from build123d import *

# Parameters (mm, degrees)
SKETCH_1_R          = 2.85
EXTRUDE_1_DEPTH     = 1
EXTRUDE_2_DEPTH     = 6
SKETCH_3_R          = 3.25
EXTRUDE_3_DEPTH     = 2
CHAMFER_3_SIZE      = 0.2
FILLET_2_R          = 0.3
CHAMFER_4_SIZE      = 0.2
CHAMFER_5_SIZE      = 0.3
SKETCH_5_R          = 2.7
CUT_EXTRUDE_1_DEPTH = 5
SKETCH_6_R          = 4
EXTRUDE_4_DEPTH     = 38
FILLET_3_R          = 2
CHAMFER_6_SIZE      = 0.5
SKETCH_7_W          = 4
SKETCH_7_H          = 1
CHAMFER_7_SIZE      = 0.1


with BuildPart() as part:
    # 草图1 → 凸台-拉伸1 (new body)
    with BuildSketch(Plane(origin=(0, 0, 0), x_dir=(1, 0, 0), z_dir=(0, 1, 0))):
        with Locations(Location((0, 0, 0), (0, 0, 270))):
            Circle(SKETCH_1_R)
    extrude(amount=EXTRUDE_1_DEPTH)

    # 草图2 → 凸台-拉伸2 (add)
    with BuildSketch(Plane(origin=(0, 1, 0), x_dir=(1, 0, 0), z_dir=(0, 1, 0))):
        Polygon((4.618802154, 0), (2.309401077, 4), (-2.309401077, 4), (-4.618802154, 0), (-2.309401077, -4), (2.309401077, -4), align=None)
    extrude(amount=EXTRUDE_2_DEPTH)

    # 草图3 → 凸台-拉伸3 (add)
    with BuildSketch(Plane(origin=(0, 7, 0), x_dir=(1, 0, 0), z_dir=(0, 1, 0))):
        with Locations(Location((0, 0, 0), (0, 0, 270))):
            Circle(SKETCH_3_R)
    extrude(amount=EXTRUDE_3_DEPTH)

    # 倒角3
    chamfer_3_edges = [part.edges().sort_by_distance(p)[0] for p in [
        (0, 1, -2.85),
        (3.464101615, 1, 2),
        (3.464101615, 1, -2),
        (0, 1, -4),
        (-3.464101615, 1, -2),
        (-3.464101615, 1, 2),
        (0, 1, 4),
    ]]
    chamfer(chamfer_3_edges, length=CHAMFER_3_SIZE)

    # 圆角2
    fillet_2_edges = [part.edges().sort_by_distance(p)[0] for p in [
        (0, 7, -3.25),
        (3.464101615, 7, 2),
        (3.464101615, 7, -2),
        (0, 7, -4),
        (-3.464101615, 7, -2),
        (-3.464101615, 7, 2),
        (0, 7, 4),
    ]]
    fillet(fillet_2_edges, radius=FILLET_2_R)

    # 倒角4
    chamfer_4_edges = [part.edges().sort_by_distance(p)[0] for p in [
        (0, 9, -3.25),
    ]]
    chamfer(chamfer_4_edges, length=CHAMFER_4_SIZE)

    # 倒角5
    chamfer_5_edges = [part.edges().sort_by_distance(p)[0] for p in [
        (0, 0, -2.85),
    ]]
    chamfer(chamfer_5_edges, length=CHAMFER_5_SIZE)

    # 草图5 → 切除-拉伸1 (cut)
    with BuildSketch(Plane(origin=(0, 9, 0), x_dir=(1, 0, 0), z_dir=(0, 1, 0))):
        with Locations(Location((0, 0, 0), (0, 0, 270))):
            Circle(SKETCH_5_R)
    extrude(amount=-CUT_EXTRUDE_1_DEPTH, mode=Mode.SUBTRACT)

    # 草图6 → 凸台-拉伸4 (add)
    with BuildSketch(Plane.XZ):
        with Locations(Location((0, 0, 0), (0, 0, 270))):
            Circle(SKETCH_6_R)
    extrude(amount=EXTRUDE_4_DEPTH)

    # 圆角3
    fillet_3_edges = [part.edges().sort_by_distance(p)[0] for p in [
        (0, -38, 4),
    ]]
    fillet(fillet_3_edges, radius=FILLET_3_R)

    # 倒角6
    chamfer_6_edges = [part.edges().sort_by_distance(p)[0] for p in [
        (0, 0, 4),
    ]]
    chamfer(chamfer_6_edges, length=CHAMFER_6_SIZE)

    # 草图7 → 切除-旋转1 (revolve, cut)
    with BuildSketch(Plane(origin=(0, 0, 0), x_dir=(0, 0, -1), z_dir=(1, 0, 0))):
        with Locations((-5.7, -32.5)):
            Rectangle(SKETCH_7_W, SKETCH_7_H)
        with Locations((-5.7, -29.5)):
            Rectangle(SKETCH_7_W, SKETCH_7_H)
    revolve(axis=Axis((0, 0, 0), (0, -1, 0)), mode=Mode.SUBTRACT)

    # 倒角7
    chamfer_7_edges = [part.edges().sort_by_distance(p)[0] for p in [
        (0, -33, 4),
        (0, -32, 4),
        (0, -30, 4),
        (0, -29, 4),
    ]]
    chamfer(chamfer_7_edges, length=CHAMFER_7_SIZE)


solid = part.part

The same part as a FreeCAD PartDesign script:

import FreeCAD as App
import Part
import Sketcher
Q = App.Units.Quantity


def edges_at(feature, points):
    """Names of the edges that pass closest to the given points."""
    edges = feature.Shape.Edges
    near = lambda p: min(range(len(edges)), key=lambda i: edges[i].distToShape(Part.Vertex(*p))[0])
    return sorted({f"Edge{near(p) + 1}" for p in points})


def add_polygon(sketch, points):
    """Adds a closed chain of lines whose ends are joined by coincident constraints."""
    first, n = sketch.GeometryCount, len(points)
    for a, b in zip(points, points[1:] + points[:1]):
        sketch.addGeometry(Part.LineSegment(App.Vector(*a, 0), App.Vector(*b, 0)), False)
    for i in range(n):
        sketch.addConstraint(Sketcher.Constraint("Coincident", first + i, 2, first + (i + 1) % n, 1))

doc = App.newDocument("Part")
params = doc.addObject("Spreadsheet::Sheet", "Params")
for row, (alias, value) in enumerate([
    ("sketch1_diameter", "5.7 mm"),
    ("pad1_length", "1 mm"),
    ("pad2_length", "6 mm"),
    ("sketch3_diameter", "6.5 mm"),
    ("pad3_length", "2 mm"),
    ("chamfer_size", "0.2 mm"),
    ("fillet_radius", "0.3 mm"),
    ("chamfer2_size", "0.2 mm"),
    ("chamfer3_size", "0.3 mm"),
    ("sketch4_diameter", "5.4 mm"),
    ("pocket1_length", "5 mm"),
    ("sketch5_diameter", "8 mm"),
    ("pad4_length", "38 mm"),
    ("fillet2_radius", "2 mm"),
    ("chamfer4_size", "0.5 mm"),
    ("sketch6_width", "1 mm"),
    ("sketch6_height", "4 mm"),
    ("groove_angle", "360 deg"),
    ("chamfer5_size", "0.1 mm"),
], start=1):
    params.set(f"A{row}", alias)
    params.set(f"B{row}", "=" + value)
    params.setAlias(f"B{row}", alias)

body = doc.addObject("PartDesign::Body", "Body")

sketch1 = body.newObject("Sketcher::SketchObject", "Sketch")
sketch1.AttachmentSupport = (doc.getObject("XZ_Plane"), [""])
sketch1.MapMode = "FlatFace"
sketch1.addGeometry(Part.Circle(App.Vector(0, 0, 0), App.Vector(0, 0, 1), 2.85), False)
sketch1.addConstraint(Sketcher.Constraint("Coincident", 0, 3, -1, 1))
sketch1.addConstraint(Sketcher.Constraint("Diameter", 0, 5.7))
sketch1.setExpression("Constraints[1]", "Params.sketch1_diameter")
pad1 = body.newObject("PartDesign::Pad", "Pad")
pad1.Profile = sketch1
pad1.setExpression("Length", "Params.pad1_length")
pad1.Reversed = True

sketch2 = body.newObject("Sketcher::SketchObject", "Sketch001")
sketch2.AttachmentSupport = (doc.getObject("XZ_Plane"), [""])
sketch2.MapMode = "FlatFace"
sketch2.AttachmentOffset = App.Placement(App.Vector(0, 0, -1), App.Rotation())
add_polygon(sketch2, [(4.618802, 0), (2.309401, -4), (-2.309401, -4), (-4.618802, 0), (-2.309401, 4), (2.309401, 4)])
sketch2.addConstraint(Sketcher.Constraint("Horizontal", 1))
sketch2.addConstraint(Sketcher.Constraint("Horizontal", 4))
sketch2.addConstraint(Sketcher.Constraint("Symmetric", 0, 2, 3, 2, -1, 1))
sketch2.addConstraint(Sketcher.Constraint("Symmetric", 2, 2, 5, 2, -1, 1))
sketch2.addConstraint(Sketcher.Constraint("PointOnObject", 2, 2, -1))
sketch2.addConstraint(Sketcher.Constraint("Parallel", 2, 5))
sketch2.addConstraint(Sketcher.Constraint("Vertical", 1, 2, 3, 2))
sketch2.addConstraint(Sketcher.Constraint("Angle", 0, Q("-120 deg")))
sketch2.addConstraint(Sketcher.Constraint("DistanceY", 0, 2, -1, 1, 4.0))
sketch2.addConstraint(Sketcher.Constraint("DistanceX", -1, 1, 0, 2, 2.309401))
pad2 = body.newObject("PartDesign::Pad", "Pad001")
pad2.Profile = sketch2
pad2.setExpression("Length", "Params.pad2_length")
pad2.Reversed = True

sketch3 = body.newObject("Sketcher::SketchObject", "Sketch002")
sketch3.AttachmentSupport = (doc.getObject("XZ_Plane"), [""])
sketch3.MapMode = "FlatFace"
sketch3.AttachmentOffset = App.Placement(App.Vector(0, 0, -7), App.Rotation())
sketch3.addGeometry(Part.Circle(App.Vector(0, 0, 0), App.Vector(0, 0, 1), 3.25), False)
sketch3.addConstraint(Sketcher.Constraint("Coincident", 0, 3, -1, 1))
sketch3.addConstraint(Sketcher.Constraint("Diameter", 0, 6.5))
sketch3.setExpression("Constraints[1]", "Params.sketch3_diameter")
pad3 = body.newObject("PartDesign::Pad", "Pad002")
pad3.Profile = sketch3
pad3.setExpression("Length", "Params.pad3_length")
pad3.Reversed = True
doc.recompute()

chamfer = body.newObject("PartDesign::Chamfer", "Chamfer")
chamfer.Base = (pad3, edges_at(pad3, [
    (0, 1, -2.85),
    (3.464, 1, 2),
    (3.464, 1, -2),
    (0, 1, -4),
    (-3.464, 1, -2),
    (-3.464, 1, 2),
    (0, 1, 4),
]))
chamfer.setExpression("Size", "Params.chamfer_size")
doc.recompute()

fillet = body.newObject("PartDesign::Fillet", "Fillet")
fillet.Base = (chamfer, edges_at(chamfer, [
    (0, 7, -3.25),
    (3.464, 7, 2),
    (3.464, 7, -2),
    (0, 7, -4),
    (-3.464, 7, -2),
    (-3.464, 7, 2),
    (0, 7, 4),
]))
fillet.setExpression("Radius", "Params.fillet_radius")
doc.recompute()

chamfer2 = body.newObject("PartDesign::Chamfer", "Chamfer001")
chamfer2.Base = (fillet, edges_at(fillet, [(0, 9, -3.25)]))
chamfer2.setExpression("Size", "Params.chamfer2_size")
doc.recompute()

chamfer3 = body.newObject("PartDesign::Chamfer", "Chamfer002")
chamfer3.Base = (chamfer2, edges_at(chamfer2, [(0, 0, -2.85)]))
chamfer3.setExpression("Size", "Params.chamfer3_size")

sketch4 = body.newObject("Sketcher::SketchObject", "Sketch003")
sketch4.AttachmentSupport = (doc.getObject("XZ_Plane"), [""])
sketch4.MapMode = "FlatFace"
sketch4.AttachmentOffset = App.Placement(App.Vector(0, 0, -9), App.Rotation())
sketch4.addGeometry(Part.Circle(App.Vector(0, 0, 0), App.Vector(0, 0, 1), 2.7), False)
sketch4.addConstraint(Sketcher.Constraint("Coincident", 0, 3, -1, 1))
sketch4.addConstraint(Sketcher.Constraint("Diameter", 0, 5.4))
sketch4.setExpression("Constraints[1]", "Params.sketch4_diameter")
pocket1 = body.newObject("PartDesign::Pocket", "Pocket")
pocket1.Profile = sketch4
pocket1.setExpression("Length", "Params.pocket1_length")
pocket1.Reversed = True

sketch5 = body.newObject("Sketcher::SketchObject", "Sketch004")
sketch5.AttachmentSupport = (doc.getObject("XZ_Plane"), [""])
sketch5.MapMode = "FlatFace"
sketch5.addGeometry(Part.Circle(App.Vector(0, 0, 0), App.Vector(0, 0, 1), 4), False)
sketch5.addConstraint(Sketcher.Constraint("Coincident", 0, 3, -1, 1))
sketch5.addConstraint(Sketcher.Constraint("Diameter", 0, 8.0))
sketch5.setExpression("Constraints[1]", "Params.sketch5_diameter")
pad4 = body.newObject("PartDesign::Pad", "Pad003")
pad4.Profile = sketch5
pad4.setExpression("Length", "Params.pad4_length")
doc.recompute()

fillet2 = body.newObject("PartDesign::Fillet", "Fillet001")
fillet2.Base = (pad4, edges_at(pad4, [(0, -38, 4)]))
fillet2.setExpression("Radius", "Params.fillet2_radius")
doc.recompute()

chamfer4 = body.newObject("PartDesign::Chamfer", "Chamfer003")
chamfer4.Base = (fillet2, edges_at(fillet2, [(0, 0, 4)]))
chamfer4.setExpression("Size", "Params.chamfer4_size")

sketch6 = body.newObject("Sketcher::SketchObject", "Sketch005")
sketch6.AttachmentSupport = (doc.getObject("YZ_Plane"), [""])
sketch6.MapMode = "FlatFace"
add_polygon(sketch6, [(-32, 7.7), (-33, 7.7), (-33, 3.7), (-32, 3.7)])
add_polygon(sketch6, [(-29, 7.7), (-30, 7.7), (-30, 3.7), (-29, 3.7)])
sketch6.addConstraint(Sketcher.Constraint("Horizontal", 0))
sketch6.addConstraint(Sketcher.Constraint("Vertical", 1))
sketch6.addConstraint(Sketcher.Constraint("Horizontal", 2))
sketch6.addConstraint(Sketcher.Constraint("Vertical", 3))
sketch6.addConstraint(Sketcher.Constraint("Horizontal", 4))
sketch6.addConstraint(Sketcher.Constraint("Vertical", 5))
sketch6.addConstraint(Sketcher.Constraint("Horizontal", 6))
sketch6.addConstraint(Sketcher.Constraint("Vertical", 7))
sketch6.addConstraint(Sketcher.Constraint("Horizontal", 3, 2, 4, 2))
sketch6.addConstraint(Sketcher.Constraint("Horizontal", 2, 2, 5, 2))
sketch6.addConstraint(Sketcher.Constraint("Equal", 2, 4))
sketch6.addConstraint(Sketcher.Constraint("DistanceX", 0, 2, 0, 1, 1.0))
sketch6.addConstraint(Sketcher.Constraint("DistanceY", 1, 2, 1, 1, 4.0))
sketch6.addConstraint(Sketcher.Constraint("DistanceX", 0, 2, -1, 1, 33.0))
sketch6.addConstraint(Sketcher.Constraint("DistanceX", 4, 2, -1, 1, 30.0))
sketch6.addConstraint(Sketcher.Constraint("DistanceY", -1, 1, 0, 2, 7.7))
sketch6.setExpression("Constraints[19]", "Params.sketch6_width")
sketch6.setExpression("Constraints[20]", "Params.sketch6_height")
groove = body.newObject("PartDesign::Groove", "Groove")
groove.Profile = sketch6
groove.ReferenceAxis = (sketch6, ["H_Axis"])
groove.setExpression("Angle", "Params.groove_angle")
doc.recompute()

chamfer5 = body.newObject("PartDesign::Chamfer", "Chamfer004")
chamfer5.Base = (groove, edges_at(groove, [
    (0, -33, 4),
    (0, -32, 4),
    (0, -30, 4),
    (0, -29, 4),
]))
chamfer5.setExpression("Size", "Params.chamfer5_size")

doc.recompute()
